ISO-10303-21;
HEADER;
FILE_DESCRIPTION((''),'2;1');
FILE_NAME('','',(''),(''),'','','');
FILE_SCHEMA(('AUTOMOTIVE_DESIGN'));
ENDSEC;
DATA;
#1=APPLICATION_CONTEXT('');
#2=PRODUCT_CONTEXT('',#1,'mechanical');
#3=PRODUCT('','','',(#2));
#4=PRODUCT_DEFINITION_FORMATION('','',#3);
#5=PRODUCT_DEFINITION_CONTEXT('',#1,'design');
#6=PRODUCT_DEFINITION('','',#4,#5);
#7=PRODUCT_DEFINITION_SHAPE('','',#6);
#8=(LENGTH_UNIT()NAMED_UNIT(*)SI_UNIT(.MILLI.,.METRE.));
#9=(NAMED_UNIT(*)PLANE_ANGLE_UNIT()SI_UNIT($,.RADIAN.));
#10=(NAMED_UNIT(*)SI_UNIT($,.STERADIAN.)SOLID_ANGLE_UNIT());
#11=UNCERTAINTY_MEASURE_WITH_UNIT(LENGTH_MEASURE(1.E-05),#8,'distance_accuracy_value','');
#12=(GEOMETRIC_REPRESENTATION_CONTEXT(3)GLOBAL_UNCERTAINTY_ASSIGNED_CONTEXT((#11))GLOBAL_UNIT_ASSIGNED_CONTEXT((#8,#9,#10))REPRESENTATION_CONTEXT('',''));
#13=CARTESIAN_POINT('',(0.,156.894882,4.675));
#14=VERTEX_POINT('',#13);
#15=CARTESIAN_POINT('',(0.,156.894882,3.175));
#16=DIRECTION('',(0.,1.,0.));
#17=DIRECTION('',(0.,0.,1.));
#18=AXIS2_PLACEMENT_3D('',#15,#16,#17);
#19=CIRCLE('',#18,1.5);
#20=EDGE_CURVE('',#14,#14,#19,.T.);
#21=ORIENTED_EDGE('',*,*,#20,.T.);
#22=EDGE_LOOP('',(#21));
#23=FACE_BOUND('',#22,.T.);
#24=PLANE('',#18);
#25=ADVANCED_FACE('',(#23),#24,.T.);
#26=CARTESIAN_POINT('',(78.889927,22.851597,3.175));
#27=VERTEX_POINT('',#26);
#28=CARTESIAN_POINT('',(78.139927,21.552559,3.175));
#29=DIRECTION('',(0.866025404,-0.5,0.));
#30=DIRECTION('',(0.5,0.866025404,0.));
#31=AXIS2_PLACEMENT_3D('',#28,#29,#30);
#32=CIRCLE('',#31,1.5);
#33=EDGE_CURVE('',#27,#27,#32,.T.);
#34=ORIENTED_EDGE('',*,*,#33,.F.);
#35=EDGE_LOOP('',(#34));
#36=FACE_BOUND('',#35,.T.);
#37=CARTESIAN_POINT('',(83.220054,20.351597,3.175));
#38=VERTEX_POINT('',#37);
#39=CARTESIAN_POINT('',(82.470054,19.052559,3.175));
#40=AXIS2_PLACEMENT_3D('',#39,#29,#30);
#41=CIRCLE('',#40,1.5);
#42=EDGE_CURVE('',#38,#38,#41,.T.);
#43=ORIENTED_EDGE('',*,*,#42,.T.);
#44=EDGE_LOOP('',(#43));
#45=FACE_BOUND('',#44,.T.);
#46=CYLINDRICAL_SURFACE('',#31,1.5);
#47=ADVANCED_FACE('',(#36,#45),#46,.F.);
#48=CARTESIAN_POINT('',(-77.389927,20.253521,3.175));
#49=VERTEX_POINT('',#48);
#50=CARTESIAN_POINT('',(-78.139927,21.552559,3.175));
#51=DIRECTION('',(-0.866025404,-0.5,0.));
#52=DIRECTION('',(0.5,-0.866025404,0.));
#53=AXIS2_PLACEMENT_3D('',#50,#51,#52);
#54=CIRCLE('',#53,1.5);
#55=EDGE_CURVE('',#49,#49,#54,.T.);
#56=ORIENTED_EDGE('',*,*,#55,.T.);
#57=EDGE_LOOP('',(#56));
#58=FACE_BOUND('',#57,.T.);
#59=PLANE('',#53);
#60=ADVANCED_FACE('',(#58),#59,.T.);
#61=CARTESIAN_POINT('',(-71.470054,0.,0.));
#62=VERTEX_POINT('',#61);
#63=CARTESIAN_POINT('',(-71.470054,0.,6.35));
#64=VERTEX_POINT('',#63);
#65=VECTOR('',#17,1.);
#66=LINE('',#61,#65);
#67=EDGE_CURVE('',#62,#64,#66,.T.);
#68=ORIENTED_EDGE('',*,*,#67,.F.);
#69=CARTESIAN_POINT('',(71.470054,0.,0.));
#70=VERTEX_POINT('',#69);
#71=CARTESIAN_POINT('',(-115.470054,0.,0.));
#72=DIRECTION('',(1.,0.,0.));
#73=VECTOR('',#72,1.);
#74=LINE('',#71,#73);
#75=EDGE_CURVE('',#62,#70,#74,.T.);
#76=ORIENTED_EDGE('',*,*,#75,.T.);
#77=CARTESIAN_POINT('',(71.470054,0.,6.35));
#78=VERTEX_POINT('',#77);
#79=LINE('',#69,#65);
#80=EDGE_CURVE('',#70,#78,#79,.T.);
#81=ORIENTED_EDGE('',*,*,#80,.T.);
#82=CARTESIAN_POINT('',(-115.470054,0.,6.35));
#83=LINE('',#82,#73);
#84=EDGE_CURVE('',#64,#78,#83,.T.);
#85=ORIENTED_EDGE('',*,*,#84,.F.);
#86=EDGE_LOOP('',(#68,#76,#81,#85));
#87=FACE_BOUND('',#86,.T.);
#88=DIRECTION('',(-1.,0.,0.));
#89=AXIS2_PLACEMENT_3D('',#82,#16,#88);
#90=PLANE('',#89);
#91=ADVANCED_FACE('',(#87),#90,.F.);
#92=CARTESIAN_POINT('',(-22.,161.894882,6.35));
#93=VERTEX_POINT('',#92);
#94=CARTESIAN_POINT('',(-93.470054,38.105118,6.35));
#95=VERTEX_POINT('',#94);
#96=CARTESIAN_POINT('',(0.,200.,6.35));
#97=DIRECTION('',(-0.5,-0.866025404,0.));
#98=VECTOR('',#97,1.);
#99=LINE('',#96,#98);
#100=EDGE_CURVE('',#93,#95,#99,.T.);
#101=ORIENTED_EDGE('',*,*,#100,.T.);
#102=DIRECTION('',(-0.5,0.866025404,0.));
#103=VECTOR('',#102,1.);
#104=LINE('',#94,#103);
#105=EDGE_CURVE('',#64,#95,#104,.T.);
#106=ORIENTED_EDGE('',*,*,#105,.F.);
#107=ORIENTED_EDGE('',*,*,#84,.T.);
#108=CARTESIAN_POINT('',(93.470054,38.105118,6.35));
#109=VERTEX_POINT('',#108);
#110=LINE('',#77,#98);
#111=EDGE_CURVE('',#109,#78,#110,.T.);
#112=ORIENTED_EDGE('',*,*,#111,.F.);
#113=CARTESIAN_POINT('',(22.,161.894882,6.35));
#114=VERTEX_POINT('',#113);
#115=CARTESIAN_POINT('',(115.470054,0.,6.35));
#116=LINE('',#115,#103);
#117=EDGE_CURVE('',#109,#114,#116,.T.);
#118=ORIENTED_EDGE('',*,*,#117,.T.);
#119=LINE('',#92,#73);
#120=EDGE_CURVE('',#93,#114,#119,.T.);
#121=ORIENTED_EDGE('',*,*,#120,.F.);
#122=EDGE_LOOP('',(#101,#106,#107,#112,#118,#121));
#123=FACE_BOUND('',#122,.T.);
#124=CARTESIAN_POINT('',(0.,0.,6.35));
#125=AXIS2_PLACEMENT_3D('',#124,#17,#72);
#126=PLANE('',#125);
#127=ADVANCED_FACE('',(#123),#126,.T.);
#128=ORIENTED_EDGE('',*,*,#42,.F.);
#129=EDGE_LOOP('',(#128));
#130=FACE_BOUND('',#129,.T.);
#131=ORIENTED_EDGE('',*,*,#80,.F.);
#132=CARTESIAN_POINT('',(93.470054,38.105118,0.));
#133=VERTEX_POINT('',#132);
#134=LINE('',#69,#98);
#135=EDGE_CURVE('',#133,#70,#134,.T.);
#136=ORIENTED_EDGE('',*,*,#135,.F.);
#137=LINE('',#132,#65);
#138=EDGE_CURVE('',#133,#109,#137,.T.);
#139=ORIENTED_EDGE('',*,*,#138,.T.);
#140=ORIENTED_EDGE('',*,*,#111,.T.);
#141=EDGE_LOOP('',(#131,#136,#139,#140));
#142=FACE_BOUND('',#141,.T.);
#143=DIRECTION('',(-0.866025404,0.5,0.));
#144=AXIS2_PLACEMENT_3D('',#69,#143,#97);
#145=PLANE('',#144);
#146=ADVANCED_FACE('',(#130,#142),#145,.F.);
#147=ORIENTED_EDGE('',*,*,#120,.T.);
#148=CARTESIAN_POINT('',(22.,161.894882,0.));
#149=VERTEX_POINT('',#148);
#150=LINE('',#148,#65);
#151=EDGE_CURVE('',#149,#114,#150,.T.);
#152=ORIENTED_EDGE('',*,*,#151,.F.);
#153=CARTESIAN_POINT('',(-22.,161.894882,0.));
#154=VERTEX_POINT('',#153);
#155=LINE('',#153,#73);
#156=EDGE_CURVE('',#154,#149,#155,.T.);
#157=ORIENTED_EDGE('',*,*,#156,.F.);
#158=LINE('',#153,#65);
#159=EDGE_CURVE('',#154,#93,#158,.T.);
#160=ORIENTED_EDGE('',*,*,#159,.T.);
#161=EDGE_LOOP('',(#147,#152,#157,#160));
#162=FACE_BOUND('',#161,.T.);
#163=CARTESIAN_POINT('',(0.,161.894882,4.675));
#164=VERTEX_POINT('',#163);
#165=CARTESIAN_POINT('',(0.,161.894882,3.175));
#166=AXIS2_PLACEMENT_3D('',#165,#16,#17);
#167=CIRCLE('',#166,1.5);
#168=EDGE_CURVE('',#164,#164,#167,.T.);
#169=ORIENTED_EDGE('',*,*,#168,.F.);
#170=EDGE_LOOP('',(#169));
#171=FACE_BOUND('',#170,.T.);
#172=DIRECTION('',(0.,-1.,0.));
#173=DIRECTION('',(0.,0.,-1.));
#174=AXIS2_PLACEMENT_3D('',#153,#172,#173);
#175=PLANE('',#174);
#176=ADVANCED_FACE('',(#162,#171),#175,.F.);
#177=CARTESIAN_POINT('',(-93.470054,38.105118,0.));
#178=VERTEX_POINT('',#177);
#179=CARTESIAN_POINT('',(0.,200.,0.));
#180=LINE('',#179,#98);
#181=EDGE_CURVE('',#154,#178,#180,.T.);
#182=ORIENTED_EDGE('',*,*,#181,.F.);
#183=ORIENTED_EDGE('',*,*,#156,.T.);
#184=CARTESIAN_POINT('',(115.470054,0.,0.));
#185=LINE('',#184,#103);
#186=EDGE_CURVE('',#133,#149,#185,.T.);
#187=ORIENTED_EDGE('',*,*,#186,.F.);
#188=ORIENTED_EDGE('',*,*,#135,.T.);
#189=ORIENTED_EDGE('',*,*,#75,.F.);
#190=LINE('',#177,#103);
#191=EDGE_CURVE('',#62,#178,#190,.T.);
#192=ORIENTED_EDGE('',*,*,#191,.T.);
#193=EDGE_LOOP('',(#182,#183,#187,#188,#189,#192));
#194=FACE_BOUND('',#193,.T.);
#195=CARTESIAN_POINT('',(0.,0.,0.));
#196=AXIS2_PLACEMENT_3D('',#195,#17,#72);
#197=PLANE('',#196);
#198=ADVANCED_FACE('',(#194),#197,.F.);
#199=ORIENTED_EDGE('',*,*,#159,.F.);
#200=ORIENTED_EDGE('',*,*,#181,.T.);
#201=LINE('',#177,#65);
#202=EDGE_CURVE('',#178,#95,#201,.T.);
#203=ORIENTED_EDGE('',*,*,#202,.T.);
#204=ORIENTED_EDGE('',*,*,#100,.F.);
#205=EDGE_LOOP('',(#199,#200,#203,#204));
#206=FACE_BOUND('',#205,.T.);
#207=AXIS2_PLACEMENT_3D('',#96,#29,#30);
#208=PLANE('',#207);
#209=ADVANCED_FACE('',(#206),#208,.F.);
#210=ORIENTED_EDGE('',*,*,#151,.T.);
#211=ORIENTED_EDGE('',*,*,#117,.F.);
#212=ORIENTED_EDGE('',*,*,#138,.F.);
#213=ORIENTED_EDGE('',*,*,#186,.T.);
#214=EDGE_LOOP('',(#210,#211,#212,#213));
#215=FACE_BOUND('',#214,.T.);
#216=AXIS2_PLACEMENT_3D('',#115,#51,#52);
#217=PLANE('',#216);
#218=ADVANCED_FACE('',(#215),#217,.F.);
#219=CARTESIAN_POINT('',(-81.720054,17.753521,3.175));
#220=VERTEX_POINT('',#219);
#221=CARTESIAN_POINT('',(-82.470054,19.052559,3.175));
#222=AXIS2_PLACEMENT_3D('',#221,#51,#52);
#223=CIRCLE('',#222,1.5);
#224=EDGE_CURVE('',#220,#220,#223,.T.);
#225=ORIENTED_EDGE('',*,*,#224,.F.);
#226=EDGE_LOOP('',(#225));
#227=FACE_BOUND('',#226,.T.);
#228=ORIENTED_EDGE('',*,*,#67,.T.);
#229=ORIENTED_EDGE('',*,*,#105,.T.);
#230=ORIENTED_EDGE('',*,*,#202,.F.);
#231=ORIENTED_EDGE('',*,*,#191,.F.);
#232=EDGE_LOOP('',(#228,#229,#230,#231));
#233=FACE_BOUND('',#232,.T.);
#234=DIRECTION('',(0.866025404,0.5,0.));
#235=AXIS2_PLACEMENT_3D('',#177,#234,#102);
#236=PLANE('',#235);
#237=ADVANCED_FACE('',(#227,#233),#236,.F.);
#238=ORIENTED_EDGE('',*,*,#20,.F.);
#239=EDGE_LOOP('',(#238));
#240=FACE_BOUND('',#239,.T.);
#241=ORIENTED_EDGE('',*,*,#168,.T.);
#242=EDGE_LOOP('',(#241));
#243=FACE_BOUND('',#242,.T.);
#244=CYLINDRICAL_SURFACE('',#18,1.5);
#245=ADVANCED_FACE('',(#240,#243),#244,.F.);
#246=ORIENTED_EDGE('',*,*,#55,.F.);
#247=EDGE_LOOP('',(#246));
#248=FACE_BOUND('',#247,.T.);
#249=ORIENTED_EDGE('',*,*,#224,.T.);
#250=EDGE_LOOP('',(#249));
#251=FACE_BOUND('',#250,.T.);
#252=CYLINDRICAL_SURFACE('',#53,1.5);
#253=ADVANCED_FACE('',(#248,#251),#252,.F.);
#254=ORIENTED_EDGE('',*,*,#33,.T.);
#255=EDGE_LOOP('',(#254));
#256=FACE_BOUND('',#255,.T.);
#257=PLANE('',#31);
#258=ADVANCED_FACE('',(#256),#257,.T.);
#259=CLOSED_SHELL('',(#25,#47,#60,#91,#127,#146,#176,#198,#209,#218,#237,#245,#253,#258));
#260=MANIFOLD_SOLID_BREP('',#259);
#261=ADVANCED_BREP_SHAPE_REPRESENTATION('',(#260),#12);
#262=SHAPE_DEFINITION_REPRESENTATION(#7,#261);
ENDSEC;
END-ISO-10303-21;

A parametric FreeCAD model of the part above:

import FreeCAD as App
import Part
import Sketcher
from FreeCAD import Vector
Q = App.Units.Quantity


def add_polygon(sketch, points):
    """Adds a closed chain of lines whose ends are joined by coincident constraints."""
    first, n = sketch.GeometryCount, len(points)
    for a, b in zip(points, points[1:] + points[:1]):
        sketch.addGeometry(Part.LineSegment(App.Vector(*a, 0), App.Vector(*b, 0)), False)
    for i in range(n):
        sketch.addConstraint(Sketcher.Constraint("Coincident", first + i, 2, first + (i + 1) % n, 1))

doc = App.newDocument("Part")
body = doc.addObject("PartDesign::Body", "Body")

sketch1 = body.newObject("Sketcher::SketchObject", "Sketch")
sketch1.AttachmentSupport = (doc.getObject("XY_Plane"), [""])
sketch1.MapMode = "FlatFace"
add_polygon(sketch1, [(-115, 0), (115, 0), (0, 200)])
sketch1.addConstraint([
    Sketcher.Constraint("Horizontal", 0),
    Sketcher.Constraint("Symmetric", 0, 2, 2, 2, -1, 1),
    Sketcher.Constraint("PointOnObject", 1, 2, -2),
    Sketcher.Constraint("Angle", 1, Q("120 deg")),
    Sketcher.Constraint("DistanceY", -1, 1, 1, 2, 200.0),
])
pad1 = body.newObject("PartDesign::Pad", "Pad")
pad1.Profile = sketch1
pad1.Length = 6.35

sketch2 = body.newObject("Sketcher::SketchObject", "Sketch001")
sketch2.AttachmentSupport = (doc.getObject("XY_Plane"), [""])
sketch2.MapMode = "FlatFace"
sketch2.AttachmentOffset = App.Placement(Vector(0, 0, 6.35), App.Rotation())
add_polygon(sketch2, [(-93, 38), (-115, 0), (-71, 0)])
add_polygon(sketch2, [(71, 0), (115, 0), (93, 38)])
add_polygon(sketch2, [(0, 200), (-22, 162), (22, 162)])
sketch2.addConstraint([
    Sketcher.Constraint("Horizontal", 1),
    Sketcher.Constraint("Horizontal", 3),
    Sketcher.Constraint("Horizontal", 7),
    Sketcher.Constraint("Symmetric", 0, 2, 3, 2, -1, 1),
    Sketcher.Constraint("Symmetric", 2, 2, 4, 2, -2),
    Sketcher.Constraint("Symmetric", 1, 2, 5, 2, -2),
    Sketcher.Constraint("PointOnObject", 8, 2, -2),
    Sketcher.Constraint("Parallel", 2, 4),
    Sketcher.Constraint("Parallel", 5, 6),
    Sketcher.Constraint("Parallel", 4, 8),
    Sketcher.Constraint("Equal", 3, 7),
    Sketcher.Constraint("DistanceX", 1, 1, 1, 2, 44.0),
    Sketcher.Constraint("Angle", 0, Q("-120 deg")),
    Sketcher.Constraint("DistanceY", -1, 1, 8, 2, 200.0),
    Sketcher.Constraint("DistanceX", 0, 2, -1, 1, 115.470054),
])
pocket1 = body.newObject("PartDesign::Pocket", "Pocket")
pocket1.Profile = sketch2
pocket1.Type = "ThroughAll"

sketch3 = body.newObject("Sketcher::SketchObject", "Sketch002")
sketch3.Placement = App.Placement(Vector(-53.60254, -30.947441, 0), App.Rotation(Vector(0, 0, 1), Vector(-0.5, 0.866025404, 0), Vector(-0.866025404, -0.5, 0), "ZXY"))
sketch3.addGeometry(Part.Circle(Vector(3.2, 57.7, 0), Vector(0, 0, 1), 1.5), False)
sketch3.addConstraint([
    Sketcher.Constraint("Diameter", 0, 3.0),
    Sketcher.Constraint("DistanceX", -1, 1, 0, 3, 3.175),
    Sketcher.Constraint("DistanceY", -1, 1, 0, 3, 57.735027),
])
pocket2 = body.newObject("PartDesign::Pocket", "Pocket001")
pocket2.Profile = sketch3
pocket2.Length = 5

sketch4 = body.newObject("Sketcher::SketchObject", "Sketch003")
sketch4.AttachmentSupport = (doc.getObject("XZ_Plane"), [""])
sketch4.MapMode = "FlatFace"
sketch4.AttachmentOffset = App.Placement(Vector(0, 0, -161.894882), App.Rotation())
sketch4.addGeometry(Part.Circle(Vector(0, 3.2, 0), Vector(0, 0, 1), 1.5), False)
sketch4.addConstraint([
    Sketcher.Constraint("PointOnObject", 0, 3, -2),
    Sketcher.Constraint("Diameter", 0, 3.0),
    Sketcher.Constraint("DistanceY", -1, 1, 0, 3, 3.175),
])
pocket3 = body.newObject("PartDesign::Pocket", "Pocket002")
pocket3.Profile = sketch4
pocket3.Length = 5
pocket3.Reversed = True

sketch5 = body.newObject("Sketcher::SketchObject", "Sketch004")
sketch5.Placement = App.Placement(Vector(53.60254, -30.947441, 0), App.Rotation(Vector(0, 0, -1), Vector(0.5, 0.866025404, 0), Vector(0.866025404, -0.5, 0), "ZXY"))
sketch5.addGeometry(Part.Circle(Vector(-3.2, 57.7, 0), Vector(0, 0, 1), 1.5), False)
sketch5.addConstraint([
    Sketcher.Constraint("Diameter", 0, 3.0),
    Sketcher.Constraint("DistanceX", 0, 3, -1, 1, 3.175),
    Sketcher.Constraint("DistanceY", -1, 1, 0, 3, 57.735027),
])
pocket4 = body.newObject("PartDesign::Pocket", "Pocket003")
pocket4.Profile = sketch5
pocket4.Length = 5

doc.recompute()
